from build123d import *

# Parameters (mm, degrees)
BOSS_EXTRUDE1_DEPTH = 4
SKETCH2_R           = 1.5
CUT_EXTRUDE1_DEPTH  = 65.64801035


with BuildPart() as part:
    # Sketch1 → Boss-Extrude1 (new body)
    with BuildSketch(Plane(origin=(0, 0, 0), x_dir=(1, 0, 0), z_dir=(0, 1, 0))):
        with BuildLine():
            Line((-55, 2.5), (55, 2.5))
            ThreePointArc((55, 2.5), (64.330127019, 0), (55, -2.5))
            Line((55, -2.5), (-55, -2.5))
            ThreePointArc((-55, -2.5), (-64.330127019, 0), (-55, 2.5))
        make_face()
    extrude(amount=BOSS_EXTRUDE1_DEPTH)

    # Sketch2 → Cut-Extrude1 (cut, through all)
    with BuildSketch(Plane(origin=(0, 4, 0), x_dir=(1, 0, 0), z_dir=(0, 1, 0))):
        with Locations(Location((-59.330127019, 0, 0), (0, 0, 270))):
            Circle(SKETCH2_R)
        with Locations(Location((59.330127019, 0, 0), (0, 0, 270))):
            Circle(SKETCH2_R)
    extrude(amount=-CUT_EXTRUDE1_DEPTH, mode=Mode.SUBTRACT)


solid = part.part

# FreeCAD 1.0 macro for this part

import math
import FreeCAD as App
import Part
import Sketcher
from FreeCAD import Vector

doc = App.newDocument("Part")
body = doc.addObject("PartDesign::Body", "Body")

sketch1 = body.newObject("Sketcher::SketchObject", "Sketch")
sketch1.AttachmentSupport = (doc.getObject("XZ_Plane"), [""])
sketch1.MapMode = "FlatFace"
sketch1.addGeometry(Part.LineSegment(Vector(55, -2, 0), Vector(-55, -2, 0)), False)
sketch1.addGeometry(Part.ArcOfCircle(Part.Circle(Vector(-59, 0, 0), Vector(0, 0, 1), 5), math.radians(30), math.radians(330)), False)
sketch1.addGeometry(Part.LineSegment(Vector(-55, 2, 0), Vector(55, 2, 0)), False)
sketch1.addGeometry(Part.ArcOfCircle(Part.Circle(Vector(59, 0, 0), Vector(0, 0, 1), 5), math.radians(-150), math.radians(150)), False)
sketch1.addConstraint(Sketcher.Constraint("Coincident", 0, 2, 1, 2))
sketch1.addConstraint(Sketcher.Constraint("Coincident", 1, 1, 2, 1))
sketch1.addConstraint(Sketcher.Constraint("Coincident", 2, 2, 3, 2))
sketch1.addConstraint(Sketcher.Constraint("Coincident", 3, 1, 0, 1))
sketch1.addConstraint(Sketcher.Constraint("Horizontal", 0))
sketch1.addConstraint(Sketcher.Constraint("Horizontal", 2))
sketch1.addConstraint(Sketcher.Constraint("Equal", 1, 3))
sketch1.addConstraint(Sketcher.Constraint("Symmetric", 1, 3, 3, 3, -1, 1))
sketch1.addConstraint(Sketcher.Constraint("Symmetric", 0, 2, 1, 1, -1))
sketch1.addConstraint(Sketcher.Constraint("Radius", 1, 5.0))
sketch1.addConstraint(Sketcher.Constraint("DistanceX", 0, 2, 0, 1, 110.0))
sketch1.addConstraint(Sketcher.Constraint("DistanceY", 0, 2, 1, 1, 5.0))
pad1 = body.newObject("PartDesign::Pad", "Pad")
pad1.Profile = sketch1
pad1.Length = 4
pad1.Reversed = True

sketch2 = body.newObject("Sketcher::SketchObject", "Sketch001")
sketch2.AttachmentSupport = (doc.getObject("XZ_Plane"), [""])
sketch2.MapMode = "FlatFace"
sketch2.AttachmentOffset = App.Placement(Vector(0, 0, -4), App.Rotation())
sketch2.addGeometry(Part.Circle(Vector(-59.3, 0, 0), Vector(0, 0, 1), 1.5), False)
sketch2.addGeometry(Part.Circle(Vector(59.3, 0, 0), Vector(0, 0, 1), 1.5), False)
sketch2.addConstraint(Sketcher.Constraint("Equal", 0, 1))
sketch2.addConstraint(Sketcher.Constraint("Symmetric", 0, 3, 1, 3, -1, 1))
sketch2.addConstraint(Sketcher.Constraint("PointOnObject", 0, 3, -1))
sketch2.addConstraint(Sketcher.Constraint("Diameter", 0, 3.0))
sketch2.addConstraint(Sketcher.Constraint("DistanceX", 0, 3, -1, 1, 59.330127))
pocket1 = body.newObject("PartDesign::Pocket", "Pocket")
pocket1.Profile = sketch2
pocket1.Type = "ThroughAll"
pocket1.Reversed = True

doc.recompute()
